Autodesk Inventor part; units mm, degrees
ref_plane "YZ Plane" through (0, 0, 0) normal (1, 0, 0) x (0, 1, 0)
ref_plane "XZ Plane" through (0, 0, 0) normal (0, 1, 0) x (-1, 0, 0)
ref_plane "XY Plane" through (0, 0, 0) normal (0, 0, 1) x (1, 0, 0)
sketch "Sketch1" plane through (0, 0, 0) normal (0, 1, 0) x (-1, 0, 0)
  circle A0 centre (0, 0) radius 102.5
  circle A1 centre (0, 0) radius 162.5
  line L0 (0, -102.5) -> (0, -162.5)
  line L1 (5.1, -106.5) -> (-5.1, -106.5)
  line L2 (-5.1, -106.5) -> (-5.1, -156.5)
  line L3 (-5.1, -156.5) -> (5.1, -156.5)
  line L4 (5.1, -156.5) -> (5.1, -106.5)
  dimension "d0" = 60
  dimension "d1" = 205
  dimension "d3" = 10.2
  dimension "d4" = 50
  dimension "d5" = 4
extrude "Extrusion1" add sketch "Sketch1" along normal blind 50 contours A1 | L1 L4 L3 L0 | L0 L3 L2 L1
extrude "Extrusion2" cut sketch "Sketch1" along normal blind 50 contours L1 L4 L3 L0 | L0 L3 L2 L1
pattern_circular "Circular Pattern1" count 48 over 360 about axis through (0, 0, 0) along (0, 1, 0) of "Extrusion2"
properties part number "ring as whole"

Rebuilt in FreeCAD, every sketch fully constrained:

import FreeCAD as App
import Part
import Sketcher
Q = App.Units.Quantity

doc = App.newDocument("Part")
params = doc.addObject("Spreadsheet::Sheet", "Params")
for row, (alias, value) in enumerate([
    ("sketch1_diameter", "205 mm"),
    ("sketch1_diameter2", "325 mm"),
    ("pad1_length", "50 mm"),
    ("sketch2_height", "50 mm"),
    ("sketch2_width", "10.2 mm"),
    ("pocket1_length", "50 mm"),
], start=1):
    params.set(f"A{row}", alias)
    params.set(f"B{row}", "=" + value)
    params.setAlias(f"B{row}", alias)

body = doc.addObject("PartDesign::Body", "Body")

sketch1 = body.newObject("Sketcher::SketchObject", "Sketch")
sketch1.AttachmentSupport = (doc.getObject("XZ_Plane"), [""])
sketch1.MapMode = "FlatFace"
sketch1.addGeometry([
    Part.Circle(App.Vector(0, 0, 0), App.Vector(0, 0, 1), 162.5),
    Part.Circle(App.Vector(0, 0, 0), App.Vector(0, 0, 1), 102.5),
], False)
sketch1.addConstraint([
    Sketcher.Constraint("Coincident", 0, 3, -1, 1),
    Sketcher.Constraint("Coincident", 1, 3, -1, 1),
    Sketcher.Constraint("Diameter", 1, Q("205 mm")),
    Sketcher.Constraint("Diameter", 0, Q("325 mm")),
])
sketch1.setExpression("Constraints[2]", "Params.sketch1_diameter")
sketch1.setExpression("Constraints[3]", "Params.sketch1_diameter2")
pad1 = body.newObject("PartDesign::Pad", "Pad")
pad1.Profile = sketch1
pad1.setExpression("Length", "Params.pad1_length")
pad1.Reversed = True

sketch2 = body.newObject("Sketcher::SketchObject", "Sketch001")
sketch2.AttachmentSupport = (doc.getObject("XZ_Plane"), [""])
sketch2.MapMode = "FlatFace"
sketch2.addGeometry([
    Part.LineSegment(App.Vector(-5.1, -106.5, 0), App.Vector(5.1, -106.5, 0)),
    Part.LineSegment(App.Vector(5.1, -106.5, 0), App.Vector(5.1, -156.5, 0)),
    Part.LineSegment(App.Vector(5.1, -156.5, 0), App.Vector(-5.1, -156.5, 0)),
    Part.LineSegment(App.Vector(-5.1, -156.5, 0), App.Vector(-5.1, -106.5, 0)),
], False)
sketch2.addConstraint([
    Sketcher.Constraint("Coincident", 0, 2, 1, 1),
    Sketcher.Constraint("Coincident", 1, 2, 2, 1),
    Sketcher.Constraint("Coincident", 2, 2, 3, 1),
    Sketcher.Constraint("Coincident", 3, 2, 0, 1),
    Sketcher.Constraint("Horizontal", 0),
    Sketcher.Constraint("Vertical", 1),
    Sketcher.Constraint("Horizontal", 2),
    Sketcher.Constraint("Vertical", 3),
    Sketcher.Constraint("DistanceY", 1, 2, 1, 1, Q("50 mm")),
    Sketcher.Constraint("DistanceX", 0, 1, 0, 2, Q("10.2 mm")),
    Sketcher.Constraint("DistanceX", -1, 1, 0, 2, Q("5.1 mm")),
    Sketcher.Constraint("DistanceY", 0, 2, -1, 1, Q("106.5 mm")),
])
sketch2.setExpression("Constraints[8]", "Params.sketch2_height")
sketch2.setExpression("Constraints[9]", "Params.sketch2_width")
pocket1 = body.newObject("PartDesign::Pocket", "Pocket")
pocket1.Profile = sketch2
pocket1.setExpression("Length", "Params.pocket1_length")
doc.recompute()

polarpattern = body.newObject("PartDesign::PolarPattern", "PolarPattern")
polarpattern.Originals = [pocket1]
polarpattern.Axis = (doc.getObject("Y_Axis"), [""])
polarpattern.Angle = 360
polarpattern.Occurrences = 48
body.Tip = polarpattern

doc.recompute()
